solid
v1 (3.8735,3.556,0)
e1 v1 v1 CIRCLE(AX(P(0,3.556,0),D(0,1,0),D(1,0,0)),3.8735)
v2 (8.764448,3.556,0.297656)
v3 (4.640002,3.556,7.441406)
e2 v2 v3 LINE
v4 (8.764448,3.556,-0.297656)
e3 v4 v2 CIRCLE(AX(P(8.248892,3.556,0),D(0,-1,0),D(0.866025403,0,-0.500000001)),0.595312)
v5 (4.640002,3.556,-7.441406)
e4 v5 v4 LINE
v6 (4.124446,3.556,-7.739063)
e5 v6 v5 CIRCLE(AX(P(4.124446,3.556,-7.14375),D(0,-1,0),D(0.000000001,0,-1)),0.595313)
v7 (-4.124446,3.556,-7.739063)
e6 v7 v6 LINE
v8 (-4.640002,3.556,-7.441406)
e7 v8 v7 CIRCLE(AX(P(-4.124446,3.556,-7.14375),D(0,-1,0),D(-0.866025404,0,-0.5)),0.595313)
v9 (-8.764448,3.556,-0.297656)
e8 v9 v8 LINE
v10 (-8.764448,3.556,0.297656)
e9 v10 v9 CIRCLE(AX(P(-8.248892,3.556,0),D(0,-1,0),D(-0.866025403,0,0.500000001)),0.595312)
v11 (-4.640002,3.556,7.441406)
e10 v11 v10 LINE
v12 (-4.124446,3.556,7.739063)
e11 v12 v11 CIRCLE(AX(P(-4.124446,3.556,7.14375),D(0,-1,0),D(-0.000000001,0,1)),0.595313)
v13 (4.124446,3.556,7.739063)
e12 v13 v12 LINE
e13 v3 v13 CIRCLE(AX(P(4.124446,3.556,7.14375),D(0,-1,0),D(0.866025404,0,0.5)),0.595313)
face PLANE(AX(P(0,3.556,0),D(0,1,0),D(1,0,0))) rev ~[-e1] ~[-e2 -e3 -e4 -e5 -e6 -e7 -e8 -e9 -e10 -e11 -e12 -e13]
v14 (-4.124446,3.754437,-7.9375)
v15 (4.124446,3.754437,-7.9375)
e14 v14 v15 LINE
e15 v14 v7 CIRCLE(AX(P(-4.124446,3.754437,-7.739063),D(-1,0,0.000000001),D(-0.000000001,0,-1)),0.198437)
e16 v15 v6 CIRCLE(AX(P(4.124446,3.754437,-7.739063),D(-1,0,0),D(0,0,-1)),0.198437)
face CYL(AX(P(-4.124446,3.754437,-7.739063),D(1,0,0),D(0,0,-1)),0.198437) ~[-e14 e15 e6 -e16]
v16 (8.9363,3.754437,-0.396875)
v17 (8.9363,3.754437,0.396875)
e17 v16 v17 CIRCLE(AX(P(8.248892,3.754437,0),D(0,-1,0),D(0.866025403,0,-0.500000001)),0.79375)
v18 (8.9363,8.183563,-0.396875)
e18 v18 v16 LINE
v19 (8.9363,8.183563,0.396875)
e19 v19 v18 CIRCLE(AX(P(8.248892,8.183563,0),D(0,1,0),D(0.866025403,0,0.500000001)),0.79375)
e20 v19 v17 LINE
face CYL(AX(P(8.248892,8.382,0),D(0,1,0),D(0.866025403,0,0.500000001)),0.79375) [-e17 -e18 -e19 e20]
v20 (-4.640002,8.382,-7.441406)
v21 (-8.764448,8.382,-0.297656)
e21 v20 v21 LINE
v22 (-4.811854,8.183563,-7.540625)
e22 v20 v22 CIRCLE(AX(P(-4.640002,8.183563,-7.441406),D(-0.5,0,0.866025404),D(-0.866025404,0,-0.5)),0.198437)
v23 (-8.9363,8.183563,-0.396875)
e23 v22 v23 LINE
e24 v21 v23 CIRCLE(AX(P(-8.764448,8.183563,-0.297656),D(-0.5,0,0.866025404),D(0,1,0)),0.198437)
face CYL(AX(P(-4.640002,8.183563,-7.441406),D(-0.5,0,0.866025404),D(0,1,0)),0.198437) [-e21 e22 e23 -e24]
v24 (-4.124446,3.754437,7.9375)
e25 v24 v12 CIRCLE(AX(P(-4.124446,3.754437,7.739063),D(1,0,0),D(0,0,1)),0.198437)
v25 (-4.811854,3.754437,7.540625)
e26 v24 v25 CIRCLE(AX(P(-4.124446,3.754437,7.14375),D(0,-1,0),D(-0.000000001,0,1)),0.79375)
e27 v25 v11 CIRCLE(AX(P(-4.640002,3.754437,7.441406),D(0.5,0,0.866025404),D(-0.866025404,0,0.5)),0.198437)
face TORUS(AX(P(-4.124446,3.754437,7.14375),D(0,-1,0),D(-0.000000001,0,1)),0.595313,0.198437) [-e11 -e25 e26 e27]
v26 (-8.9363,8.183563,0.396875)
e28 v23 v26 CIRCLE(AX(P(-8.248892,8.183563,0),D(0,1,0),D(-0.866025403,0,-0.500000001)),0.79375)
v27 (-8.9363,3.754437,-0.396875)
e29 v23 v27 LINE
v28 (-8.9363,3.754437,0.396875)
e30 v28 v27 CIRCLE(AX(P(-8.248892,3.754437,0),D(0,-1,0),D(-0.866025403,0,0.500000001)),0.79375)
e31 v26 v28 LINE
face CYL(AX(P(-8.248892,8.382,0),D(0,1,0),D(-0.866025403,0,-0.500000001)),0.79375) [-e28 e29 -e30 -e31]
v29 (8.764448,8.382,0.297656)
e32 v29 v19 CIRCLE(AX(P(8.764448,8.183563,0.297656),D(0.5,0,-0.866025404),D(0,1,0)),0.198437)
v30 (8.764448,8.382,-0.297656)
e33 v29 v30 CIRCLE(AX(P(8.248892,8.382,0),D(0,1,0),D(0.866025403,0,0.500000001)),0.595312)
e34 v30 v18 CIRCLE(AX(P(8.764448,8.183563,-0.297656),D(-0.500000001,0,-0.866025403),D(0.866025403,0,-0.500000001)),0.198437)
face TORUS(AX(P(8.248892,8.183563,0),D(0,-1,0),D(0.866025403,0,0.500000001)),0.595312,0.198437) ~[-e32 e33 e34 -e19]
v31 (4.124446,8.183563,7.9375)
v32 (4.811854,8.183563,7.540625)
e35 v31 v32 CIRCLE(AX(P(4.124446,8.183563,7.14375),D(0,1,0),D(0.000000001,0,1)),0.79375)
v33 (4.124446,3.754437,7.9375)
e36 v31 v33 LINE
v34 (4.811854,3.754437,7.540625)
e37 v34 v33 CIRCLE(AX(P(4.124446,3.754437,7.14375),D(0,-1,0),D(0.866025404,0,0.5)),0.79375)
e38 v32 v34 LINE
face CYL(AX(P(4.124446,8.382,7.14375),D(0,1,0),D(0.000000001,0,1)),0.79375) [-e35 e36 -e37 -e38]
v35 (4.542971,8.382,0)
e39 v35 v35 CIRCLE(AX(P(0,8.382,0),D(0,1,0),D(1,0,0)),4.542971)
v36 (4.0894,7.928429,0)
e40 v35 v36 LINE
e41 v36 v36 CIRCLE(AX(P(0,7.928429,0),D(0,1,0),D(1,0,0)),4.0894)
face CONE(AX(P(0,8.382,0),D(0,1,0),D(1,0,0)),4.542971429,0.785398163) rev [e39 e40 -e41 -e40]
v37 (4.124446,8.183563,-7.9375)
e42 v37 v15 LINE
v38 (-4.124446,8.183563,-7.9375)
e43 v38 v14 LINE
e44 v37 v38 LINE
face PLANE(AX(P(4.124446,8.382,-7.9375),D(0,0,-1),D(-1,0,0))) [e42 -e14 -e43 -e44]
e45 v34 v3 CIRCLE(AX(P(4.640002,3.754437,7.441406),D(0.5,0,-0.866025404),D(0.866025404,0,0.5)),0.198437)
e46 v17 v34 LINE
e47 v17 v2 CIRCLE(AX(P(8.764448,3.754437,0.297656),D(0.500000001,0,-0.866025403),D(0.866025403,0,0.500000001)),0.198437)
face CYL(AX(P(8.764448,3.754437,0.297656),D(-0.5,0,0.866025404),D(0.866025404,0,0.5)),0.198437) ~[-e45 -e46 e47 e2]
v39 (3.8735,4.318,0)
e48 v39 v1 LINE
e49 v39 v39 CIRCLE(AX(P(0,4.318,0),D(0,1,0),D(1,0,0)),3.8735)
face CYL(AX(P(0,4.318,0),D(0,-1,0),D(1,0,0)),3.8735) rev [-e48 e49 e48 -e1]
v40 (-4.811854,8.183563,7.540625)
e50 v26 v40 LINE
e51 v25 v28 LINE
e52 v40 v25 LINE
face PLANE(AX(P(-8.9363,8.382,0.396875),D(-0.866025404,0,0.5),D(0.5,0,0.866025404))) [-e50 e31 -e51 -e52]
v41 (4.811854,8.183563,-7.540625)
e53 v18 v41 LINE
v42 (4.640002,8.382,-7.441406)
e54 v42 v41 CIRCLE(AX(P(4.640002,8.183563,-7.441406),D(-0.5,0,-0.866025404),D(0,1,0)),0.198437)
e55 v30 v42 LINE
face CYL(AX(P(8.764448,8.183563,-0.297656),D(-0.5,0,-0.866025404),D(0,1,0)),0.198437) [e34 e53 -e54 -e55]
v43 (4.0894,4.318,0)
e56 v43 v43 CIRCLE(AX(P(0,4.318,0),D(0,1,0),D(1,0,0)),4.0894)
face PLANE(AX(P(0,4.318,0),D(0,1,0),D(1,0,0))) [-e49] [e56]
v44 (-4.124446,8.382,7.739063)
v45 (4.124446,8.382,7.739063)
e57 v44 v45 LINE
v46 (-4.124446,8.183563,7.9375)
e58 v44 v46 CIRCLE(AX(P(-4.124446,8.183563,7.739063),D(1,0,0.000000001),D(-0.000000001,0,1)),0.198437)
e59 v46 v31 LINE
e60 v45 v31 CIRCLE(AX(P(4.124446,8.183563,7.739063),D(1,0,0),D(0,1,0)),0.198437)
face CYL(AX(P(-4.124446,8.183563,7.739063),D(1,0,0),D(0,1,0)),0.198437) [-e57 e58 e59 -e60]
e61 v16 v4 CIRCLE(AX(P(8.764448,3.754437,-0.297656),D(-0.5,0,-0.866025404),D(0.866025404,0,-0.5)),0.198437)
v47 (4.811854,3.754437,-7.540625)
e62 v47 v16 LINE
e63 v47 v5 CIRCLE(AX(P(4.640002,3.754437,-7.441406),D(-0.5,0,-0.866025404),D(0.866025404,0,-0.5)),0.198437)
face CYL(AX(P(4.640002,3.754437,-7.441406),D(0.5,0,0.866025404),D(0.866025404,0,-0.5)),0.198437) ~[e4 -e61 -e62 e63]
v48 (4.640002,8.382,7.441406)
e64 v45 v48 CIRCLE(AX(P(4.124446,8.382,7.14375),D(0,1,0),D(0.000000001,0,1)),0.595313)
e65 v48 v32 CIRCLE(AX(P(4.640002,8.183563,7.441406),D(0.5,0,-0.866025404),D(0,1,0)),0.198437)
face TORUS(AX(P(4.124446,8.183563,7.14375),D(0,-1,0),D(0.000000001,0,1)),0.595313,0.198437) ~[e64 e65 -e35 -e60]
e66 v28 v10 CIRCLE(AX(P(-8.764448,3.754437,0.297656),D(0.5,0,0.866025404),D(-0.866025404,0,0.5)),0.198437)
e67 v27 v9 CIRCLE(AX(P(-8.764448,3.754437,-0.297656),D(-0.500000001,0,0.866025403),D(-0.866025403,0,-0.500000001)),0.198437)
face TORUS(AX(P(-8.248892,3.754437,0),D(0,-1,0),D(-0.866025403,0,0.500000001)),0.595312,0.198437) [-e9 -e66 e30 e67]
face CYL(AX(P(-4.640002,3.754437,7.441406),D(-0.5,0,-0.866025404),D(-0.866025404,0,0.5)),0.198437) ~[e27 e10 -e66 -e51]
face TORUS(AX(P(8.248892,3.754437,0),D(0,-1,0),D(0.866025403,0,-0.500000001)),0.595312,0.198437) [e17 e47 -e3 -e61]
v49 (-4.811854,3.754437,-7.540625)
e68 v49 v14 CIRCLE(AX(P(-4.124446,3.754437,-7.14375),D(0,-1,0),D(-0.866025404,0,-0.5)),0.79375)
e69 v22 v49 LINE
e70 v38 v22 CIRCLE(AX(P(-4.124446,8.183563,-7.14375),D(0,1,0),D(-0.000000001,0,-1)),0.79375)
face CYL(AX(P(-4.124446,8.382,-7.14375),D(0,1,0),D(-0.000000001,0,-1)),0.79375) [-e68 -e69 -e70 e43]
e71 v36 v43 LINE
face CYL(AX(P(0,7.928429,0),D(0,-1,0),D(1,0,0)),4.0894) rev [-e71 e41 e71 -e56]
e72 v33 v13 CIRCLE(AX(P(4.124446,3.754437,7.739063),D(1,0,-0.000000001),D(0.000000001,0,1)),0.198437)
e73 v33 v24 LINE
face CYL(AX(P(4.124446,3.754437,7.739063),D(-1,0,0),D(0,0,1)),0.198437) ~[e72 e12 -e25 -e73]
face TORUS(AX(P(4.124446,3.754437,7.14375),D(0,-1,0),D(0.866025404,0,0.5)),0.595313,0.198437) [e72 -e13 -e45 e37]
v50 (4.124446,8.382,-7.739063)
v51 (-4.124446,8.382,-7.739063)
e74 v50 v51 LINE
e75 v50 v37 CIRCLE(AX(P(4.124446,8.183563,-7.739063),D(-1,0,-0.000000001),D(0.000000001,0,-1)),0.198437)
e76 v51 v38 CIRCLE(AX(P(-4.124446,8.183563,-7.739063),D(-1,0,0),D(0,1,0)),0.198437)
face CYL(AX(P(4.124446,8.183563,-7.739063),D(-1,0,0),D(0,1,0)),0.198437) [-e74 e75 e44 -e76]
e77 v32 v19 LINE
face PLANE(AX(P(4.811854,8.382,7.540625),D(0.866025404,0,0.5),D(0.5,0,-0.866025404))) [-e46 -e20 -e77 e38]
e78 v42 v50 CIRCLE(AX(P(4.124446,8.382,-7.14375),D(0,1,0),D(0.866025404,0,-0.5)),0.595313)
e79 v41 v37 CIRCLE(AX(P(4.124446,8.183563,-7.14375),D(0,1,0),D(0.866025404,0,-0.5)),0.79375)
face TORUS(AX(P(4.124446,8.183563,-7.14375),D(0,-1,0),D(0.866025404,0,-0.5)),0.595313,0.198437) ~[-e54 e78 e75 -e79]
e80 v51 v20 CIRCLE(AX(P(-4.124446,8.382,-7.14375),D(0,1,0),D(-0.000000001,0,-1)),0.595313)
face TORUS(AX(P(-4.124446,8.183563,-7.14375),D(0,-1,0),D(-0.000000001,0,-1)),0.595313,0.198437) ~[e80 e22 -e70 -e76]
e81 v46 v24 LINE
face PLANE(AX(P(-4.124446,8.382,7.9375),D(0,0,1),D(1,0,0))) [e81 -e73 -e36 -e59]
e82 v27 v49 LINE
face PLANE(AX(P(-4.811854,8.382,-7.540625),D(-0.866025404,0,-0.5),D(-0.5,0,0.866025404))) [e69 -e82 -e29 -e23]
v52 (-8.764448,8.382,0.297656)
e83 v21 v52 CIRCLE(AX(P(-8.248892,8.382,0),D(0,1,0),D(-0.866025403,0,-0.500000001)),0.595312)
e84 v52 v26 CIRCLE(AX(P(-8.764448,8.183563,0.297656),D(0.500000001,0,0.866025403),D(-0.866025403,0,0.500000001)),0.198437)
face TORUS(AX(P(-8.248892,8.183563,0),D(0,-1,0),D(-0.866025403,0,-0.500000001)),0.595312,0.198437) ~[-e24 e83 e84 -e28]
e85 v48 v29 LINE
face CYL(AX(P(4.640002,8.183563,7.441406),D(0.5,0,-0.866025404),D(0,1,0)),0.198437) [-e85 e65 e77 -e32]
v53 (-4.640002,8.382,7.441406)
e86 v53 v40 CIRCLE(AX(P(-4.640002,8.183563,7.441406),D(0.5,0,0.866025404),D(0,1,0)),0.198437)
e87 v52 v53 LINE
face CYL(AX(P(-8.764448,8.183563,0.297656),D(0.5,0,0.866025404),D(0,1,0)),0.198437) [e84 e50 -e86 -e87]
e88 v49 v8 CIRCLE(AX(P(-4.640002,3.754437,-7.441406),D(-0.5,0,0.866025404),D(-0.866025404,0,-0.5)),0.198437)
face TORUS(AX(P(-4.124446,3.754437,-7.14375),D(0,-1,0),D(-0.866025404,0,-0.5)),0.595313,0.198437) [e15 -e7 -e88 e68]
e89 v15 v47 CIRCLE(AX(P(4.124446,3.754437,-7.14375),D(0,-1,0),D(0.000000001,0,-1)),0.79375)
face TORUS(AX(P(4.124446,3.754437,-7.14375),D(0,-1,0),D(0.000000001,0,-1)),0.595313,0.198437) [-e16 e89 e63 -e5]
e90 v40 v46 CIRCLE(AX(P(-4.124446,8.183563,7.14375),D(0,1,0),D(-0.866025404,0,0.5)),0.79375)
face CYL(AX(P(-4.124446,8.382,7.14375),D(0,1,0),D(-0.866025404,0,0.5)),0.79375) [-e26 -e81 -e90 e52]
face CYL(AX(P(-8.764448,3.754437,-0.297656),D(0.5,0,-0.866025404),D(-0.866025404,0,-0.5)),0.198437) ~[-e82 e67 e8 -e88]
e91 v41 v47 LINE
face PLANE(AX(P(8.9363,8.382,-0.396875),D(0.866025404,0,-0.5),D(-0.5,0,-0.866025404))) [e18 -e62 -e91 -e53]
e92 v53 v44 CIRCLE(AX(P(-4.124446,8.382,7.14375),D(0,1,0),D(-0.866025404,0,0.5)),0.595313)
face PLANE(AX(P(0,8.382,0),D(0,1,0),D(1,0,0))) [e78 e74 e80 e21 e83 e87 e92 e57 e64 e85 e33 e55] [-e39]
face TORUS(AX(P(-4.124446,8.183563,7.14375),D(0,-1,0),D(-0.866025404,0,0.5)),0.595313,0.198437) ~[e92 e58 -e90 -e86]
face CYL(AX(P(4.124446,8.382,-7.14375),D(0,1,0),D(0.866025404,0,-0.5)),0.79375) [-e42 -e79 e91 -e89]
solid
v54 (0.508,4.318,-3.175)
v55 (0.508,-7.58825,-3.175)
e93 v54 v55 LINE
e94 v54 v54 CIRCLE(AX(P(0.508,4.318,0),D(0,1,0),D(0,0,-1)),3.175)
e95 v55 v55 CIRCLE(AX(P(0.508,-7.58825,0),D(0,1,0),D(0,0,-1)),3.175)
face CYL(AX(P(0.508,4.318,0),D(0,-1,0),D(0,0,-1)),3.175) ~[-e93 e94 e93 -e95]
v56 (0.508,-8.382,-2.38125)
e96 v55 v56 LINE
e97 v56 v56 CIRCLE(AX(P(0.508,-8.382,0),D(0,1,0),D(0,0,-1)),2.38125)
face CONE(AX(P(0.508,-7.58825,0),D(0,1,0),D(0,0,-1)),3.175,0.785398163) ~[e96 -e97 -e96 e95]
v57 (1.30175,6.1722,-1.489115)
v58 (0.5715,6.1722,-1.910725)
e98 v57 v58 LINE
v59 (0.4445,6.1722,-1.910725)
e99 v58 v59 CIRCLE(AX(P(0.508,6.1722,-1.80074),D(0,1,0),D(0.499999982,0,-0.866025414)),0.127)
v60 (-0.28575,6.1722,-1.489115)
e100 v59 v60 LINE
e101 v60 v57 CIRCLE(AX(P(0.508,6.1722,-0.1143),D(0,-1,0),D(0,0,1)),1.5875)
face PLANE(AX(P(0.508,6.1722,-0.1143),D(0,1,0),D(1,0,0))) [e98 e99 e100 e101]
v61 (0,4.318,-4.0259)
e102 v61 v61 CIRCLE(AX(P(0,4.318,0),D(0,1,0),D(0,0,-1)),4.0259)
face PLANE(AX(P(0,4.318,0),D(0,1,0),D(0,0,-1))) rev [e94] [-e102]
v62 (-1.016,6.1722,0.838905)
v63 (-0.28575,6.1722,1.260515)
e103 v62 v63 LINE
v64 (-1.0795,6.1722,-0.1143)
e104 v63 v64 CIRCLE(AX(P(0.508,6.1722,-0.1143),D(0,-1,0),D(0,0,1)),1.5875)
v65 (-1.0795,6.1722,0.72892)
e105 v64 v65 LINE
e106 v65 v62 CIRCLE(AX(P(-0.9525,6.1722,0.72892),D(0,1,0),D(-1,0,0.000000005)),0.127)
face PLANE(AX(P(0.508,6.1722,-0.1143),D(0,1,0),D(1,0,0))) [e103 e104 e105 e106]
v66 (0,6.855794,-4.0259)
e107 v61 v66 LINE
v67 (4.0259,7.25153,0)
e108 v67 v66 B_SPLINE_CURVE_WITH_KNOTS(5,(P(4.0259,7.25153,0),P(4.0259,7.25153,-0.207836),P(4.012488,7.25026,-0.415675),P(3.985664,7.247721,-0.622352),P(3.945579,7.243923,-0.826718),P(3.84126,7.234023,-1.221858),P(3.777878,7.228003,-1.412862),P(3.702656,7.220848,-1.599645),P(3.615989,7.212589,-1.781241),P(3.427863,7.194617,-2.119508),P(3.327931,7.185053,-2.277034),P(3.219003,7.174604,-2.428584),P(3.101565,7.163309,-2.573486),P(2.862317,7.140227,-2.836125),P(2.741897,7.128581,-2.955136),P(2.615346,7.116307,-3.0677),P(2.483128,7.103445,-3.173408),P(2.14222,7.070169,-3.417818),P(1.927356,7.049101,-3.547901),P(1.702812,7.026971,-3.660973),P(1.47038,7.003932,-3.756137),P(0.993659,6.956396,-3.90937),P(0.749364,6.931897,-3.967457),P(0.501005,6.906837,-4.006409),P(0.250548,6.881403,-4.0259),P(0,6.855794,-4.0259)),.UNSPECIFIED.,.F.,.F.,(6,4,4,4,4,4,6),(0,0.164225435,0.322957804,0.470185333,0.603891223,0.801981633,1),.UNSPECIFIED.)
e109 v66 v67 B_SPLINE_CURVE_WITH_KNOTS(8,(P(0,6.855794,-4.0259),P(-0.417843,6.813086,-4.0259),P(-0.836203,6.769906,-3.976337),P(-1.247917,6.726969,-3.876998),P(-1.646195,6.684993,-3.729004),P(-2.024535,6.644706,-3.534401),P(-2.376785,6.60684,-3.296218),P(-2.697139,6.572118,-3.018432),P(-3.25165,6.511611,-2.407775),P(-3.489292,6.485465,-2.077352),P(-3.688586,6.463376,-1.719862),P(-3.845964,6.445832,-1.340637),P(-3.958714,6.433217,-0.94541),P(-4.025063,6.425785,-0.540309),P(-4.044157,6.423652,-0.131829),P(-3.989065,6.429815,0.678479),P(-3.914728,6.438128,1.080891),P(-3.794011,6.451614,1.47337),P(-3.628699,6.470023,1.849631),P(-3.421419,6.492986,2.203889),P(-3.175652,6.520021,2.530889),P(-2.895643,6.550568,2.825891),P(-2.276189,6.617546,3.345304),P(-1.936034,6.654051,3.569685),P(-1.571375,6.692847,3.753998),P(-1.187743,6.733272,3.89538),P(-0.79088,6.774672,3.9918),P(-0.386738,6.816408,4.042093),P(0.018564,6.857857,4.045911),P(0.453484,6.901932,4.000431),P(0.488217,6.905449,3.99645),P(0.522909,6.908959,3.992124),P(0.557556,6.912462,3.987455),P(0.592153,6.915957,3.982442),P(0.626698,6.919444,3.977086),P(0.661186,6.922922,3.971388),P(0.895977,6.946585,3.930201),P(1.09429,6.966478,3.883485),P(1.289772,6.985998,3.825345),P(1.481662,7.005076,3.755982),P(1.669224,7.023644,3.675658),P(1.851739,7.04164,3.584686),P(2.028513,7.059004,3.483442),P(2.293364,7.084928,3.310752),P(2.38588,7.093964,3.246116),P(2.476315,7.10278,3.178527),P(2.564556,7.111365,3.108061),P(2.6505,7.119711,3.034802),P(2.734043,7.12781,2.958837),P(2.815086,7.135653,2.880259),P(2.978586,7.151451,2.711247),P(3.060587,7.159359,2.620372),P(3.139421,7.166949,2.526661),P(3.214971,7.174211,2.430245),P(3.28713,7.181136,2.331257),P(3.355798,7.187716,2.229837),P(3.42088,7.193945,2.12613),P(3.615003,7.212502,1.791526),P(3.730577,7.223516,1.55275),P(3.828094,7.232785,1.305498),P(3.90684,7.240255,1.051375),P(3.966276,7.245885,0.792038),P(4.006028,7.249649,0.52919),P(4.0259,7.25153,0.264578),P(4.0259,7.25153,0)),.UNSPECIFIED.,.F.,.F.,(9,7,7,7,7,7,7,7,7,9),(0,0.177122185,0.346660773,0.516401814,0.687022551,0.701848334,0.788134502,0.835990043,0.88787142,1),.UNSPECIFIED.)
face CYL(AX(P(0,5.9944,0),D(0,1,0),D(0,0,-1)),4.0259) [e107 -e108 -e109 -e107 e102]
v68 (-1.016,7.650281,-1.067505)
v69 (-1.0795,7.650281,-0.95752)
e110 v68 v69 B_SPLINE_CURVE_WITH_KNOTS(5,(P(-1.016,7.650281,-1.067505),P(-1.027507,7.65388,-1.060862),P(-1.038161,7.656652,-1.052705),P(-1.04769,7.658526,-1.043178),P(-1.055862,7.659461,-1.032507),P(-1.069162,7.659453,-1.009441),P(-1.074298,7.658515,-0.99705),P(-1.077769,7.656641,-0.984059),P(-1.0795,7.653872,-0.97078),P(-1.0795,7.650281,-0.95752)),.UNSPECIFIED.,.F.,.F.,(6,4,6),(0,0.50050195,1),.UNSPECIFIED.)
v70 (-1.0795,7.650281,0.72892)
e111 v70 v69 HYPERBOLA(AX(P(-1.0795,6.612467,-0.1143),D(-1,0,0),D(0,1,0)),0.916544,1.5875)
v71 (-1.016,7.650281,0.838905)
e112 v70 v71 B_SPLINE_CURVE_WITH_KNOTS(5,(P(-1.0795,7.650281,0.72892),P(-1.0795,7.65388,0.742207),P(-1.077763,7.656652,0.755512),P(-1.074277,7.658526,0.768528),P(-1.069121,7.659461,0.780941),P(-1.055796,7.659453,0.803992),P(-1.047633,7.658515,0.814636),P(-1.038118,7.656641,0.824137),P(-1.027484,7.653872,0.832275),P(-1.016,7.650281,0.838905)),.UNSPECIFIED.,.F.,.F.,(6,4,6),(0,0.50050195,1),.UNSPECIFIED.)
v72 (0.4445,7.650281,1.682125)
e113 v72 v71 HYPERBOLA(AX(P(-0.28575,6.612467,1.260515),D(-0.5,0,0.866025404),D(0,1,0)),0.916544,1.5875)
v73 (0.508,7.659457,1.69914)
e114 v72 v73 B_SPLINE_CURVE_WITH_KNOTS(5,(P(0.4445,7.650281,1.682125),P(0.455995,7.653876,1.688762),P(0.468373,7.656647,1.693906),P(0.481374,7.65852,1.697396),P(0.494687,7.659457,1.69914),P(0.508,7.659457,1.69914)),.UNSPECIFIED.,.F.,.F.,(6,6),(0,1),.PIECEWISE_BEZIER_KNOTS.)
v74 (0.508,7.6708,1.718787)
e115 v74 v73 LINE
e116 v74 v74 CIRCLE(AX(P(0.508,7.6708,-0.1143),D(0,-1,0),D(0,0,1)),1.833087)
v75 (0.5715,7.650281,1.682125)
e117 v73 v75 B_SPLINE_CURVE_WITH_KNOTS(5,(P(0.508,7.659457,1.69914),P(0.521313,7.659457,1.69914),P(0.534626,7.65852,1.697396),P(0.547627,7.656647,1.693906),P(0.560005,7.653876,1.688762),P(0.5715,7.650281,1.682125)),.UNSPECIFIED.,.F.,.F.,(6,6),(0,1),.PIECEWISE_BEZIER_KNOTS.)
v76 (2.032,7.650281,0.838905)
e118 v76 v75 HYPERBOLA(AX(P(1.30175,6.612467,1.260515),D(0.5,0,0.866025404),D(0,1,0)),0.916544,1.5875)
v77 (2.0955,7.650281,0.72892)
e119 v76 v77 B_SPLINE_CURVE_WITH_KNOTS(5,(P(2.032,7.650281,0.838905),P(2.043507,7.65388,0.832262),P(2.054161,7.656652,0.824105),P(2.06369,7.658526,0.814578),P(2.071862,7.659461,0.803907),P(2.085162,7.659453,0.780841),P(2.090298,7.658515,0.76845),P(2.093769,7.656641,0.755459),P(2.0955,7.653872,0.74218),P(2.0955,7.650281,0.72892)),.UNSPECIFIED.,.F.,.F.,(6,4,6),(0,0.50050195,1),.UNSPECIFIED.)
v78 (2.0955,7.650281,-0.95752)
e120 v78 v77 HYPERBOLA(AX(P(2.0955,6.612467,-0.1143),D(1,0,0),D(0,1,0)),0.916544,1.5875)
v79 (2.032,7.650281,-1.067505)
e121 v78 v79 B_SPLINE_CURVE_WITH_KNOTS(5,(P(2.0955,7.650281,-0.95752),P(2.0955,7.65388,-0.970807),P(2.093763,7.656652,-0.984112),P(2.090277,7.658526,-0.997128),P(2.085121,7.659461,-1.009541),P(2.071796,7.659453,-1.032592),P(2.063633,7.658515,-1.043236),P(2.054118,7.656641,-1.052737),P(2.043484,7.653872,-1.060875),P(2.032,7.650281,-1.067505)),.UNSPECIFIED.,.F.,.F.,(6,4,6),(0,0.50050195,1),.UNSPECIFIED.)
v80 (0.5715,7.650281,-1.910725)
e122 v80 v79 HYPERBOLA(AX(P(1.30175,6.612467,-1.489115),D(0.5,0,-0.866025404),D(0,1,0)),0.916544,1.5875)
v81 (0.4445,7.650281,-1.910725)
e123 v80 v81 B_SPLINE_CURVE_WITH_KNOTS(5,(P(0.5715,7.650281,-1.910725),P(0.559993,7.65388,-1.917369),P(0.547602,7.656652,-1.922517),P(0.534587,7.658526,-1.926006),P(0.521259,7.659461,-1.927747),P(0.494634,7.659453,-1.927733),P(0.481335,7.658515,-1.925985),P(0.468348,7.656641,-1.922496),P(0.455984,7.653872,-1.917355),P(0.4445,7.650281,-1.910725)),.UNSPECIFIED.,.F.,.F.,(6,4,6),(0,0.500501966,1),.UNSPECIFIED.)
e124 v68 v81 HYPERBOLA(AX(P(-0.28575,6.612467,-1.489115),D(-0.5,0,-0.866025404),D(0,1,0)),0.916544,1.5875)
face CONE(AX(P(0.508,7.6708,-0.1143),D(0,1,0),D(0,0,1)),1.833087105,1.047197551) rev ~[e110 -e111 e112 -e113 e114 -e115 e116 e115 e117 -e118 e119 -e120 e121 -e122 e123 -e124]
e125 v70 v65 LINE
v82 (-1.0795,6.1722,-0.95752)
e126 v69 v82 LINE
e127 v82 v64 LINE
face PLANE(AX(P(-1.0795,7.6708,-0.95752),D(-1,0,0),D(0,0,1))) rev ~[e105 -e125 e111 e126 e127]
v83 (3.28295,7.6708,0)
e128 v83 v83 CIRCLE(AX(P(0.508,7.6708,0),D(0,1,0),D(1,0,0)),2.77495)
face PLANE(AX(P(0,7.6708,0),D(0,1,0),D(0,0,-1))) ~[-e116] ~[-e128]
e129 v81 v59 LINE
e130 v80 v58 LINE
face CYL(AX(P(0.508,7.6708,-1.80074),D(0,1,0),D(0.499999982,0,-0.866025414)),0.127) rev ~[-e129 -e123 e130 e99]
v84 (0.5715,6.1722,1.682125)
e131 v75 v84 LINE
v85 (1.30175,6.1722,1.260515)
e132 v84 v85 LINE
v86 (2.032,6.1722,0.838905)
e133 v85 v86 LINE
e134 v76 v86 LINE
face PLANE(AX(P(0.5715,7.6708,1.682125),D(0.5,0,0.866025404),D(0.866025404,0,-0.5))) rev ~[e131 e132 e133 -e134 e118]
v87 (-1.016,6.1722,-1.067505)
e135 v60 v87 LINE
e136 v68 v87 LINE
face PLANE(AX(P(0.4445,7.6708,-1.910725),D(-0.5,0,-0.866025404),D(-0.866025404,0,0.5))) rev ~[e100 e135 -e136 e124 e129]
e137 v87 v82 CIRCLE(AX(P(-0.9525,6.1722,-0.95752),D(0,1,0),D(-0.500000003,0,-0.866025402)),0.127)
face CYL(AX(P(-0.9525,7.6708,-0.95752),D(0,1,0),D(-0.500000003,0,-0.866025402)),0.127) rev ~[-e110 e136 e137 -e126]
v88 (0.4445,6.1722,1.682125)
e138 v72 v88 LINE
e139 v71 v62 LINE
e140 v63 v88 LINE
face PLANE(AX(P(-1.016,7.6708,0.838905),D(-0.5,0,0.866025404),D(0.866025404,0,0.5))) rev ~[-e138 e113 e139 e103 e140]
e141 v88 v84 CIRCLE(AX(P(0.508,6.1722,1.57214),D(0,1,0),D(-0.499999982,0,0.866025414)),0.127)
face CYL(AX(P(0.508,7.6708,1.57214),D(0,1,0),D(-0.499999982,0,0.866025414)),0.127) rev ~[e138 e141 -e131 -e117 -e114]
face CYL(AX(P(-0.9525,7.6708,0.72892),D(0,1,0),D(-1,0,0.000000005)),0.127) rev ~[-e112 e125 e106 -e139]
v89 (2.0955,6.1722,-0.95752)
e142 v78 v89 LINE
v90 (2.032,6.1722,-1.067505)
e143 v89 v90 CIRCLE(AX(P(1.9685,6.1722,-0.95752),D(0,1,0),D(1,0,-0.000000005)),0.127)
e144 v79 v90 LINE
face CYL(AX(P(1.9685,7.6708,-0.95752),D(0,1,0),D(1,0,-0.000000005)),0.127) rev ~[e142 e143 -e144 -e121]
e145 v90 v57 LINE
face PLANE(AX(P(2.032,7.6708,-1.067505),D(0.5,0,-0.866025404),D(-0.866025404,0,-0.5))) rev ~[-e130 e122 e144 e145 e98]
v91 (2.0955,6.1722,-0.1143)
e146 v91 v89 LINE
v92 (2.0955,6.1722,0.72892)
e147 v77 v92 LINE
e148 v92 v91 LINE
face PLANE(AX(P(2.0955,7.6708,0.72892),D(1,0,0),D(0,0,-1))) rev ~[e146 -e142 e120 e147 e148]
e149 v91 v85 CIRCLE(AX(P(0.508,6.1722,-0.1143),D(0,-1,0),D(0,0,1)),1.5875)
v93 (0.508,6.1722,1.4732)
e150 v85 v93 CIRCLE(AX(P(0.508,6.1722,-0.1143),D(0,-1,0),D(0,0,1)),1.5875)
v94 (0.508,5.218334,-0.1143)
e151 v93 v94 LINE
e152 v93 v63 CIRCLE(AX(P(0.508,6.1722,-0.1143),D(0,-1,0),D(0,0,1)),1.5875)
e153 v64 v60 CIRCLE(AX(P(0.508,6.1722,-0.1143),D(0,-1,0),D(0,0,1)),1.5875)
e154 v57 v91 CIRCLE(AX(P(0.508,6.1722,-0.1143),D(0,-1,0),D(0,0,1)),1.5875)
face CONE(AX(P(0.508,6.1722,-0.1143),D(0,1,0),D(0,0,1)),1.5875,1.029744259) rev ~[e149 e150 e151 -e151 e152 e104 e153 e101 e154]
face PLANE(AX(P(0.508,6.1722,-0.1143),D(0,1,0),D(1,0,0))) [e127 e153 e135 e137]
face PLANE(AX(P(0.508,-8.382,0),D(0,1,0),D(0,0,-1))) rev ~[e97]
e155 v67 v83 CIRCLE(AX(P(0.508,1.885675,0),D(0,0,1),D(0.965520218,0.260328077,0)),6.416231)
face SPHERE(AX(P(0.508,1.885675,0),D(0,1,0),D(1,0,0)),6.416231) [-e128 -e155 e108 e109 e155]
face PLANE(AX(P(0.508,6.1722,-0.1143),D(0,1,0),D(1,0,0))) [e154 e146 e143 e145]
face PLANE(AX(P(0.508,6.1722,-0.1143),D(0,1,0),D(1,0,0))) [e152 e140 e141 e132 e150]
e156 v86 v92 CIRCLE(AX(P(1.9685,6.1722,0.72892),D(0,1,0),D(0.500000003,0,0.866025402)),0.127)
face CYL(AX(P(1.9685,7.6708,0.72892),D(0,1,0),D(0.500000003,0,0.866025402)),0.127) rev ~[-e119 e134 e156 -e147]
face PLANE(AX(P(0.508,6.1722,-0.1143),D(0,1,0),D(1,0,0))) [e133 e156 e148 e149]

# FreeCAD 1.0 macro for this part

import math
import FreeCAD as App
import Part
import Sketcher
Q = App.Units.Quantity


def edges_at(feature, points):
    """Names of the edges that pass closest to the given points."""
    edges = feature.Shape.Edges
    near = lambda p: min(range(len(edges)), key=lambda i: edges[i].distToShape(Part.Vertex(*p))[0])
    return sorted({f"Edge{near(p) + 1}" for p in points})

doc = App.newDocument("Part")
params = doc.addObject("Spreadsheet::Sheet", "Params")
for row, (alias, value) in enumerate([
    ("sketch1_width", "0.16 in"),
    ("sketch1_height", "0.19 in"),
    ("sketch1_height2", "0.03 in"),
    ("revolution_angle", "360 deg"),
    ("sketch2_radius", "0.03125 in"),
    ("pad1_length", "0.19 in"),
    ("fillet_radius", "0.198437 mm"),
    ("sketch3_height", "0.132 in"),
    ("revolution2_angle", "360 deg"),
    ("sketch4_height", "0.5 in"),
    ("sketch4_width", "0.125 in"),
    ("sketch4_width2", "0.09375 in"),
    ("revolution3_angle", "360 deg"),
    ("sketch5_height", "0.19 in"),
    ("groove_angle", "360 deg"),
    ("sketch6_radius", "0.005 in"),
    ("pocket1_length", "0.059 in"),
    ("sketch7_height", "0.0625 in"),
    ("groove2_angle", "360 deg"),
    ("groove3_angle", "360 deg"),
], start=1):
    params.set(f"A{row}", alias)
    params.set(f"B{row}", "=" + value)
    params.setAlias(f"B{row}", alias)

body = doc.addObject("PartDesign::Body", "Body")

# Sketch on XY plane
sketch1 = doc.addObject("Sketcher::SketchObject", "Sketch")
body.addObject(sketch1)
sketch1.AttachmentSupport = (doc.XY_Plane, [""])
sketch1.MapMode = "FlatFace"
sketch1.addGeometry(Part.LineSegment(App.Vector(-4.0894, 7.928429, 0), App.Vector(-4.542971, 8.382, 0)), False)
sketch1.addGeometry(Part.LineSegment(App.Vector(-4.542971, 8.382, 0), App.Vector(-7.9375, 8.382, 0)), False)
sketch1.addGeometry(Part.LineSegment(App.Vector(-7.9375, 8.382, 0), App.Vector(-7.9375, 3.556, 0)), False)
sketch1.addGeometry(Part.LineSegment(App.Vector(-7.9375, 3.556, 0), App.Vector(-3.8735, 3.556, 0)), False)
sketch1.addGeometry(Part.LineSegment(App.Vector(-3.8735, 3.556, 0), App.Vector(-3.8735, 4.318, 0)), False)
sketch1.addGeometry(Part.LineSegment(App.Vector(-3.8735, 4.318, 0), App.Vector(-4.0894, 4.318, 0)), False)
sketch1.addGeometry(Part.LineSegment(App.Vector(-4.0894, 4.318, 0), App.Vector(-4.0894, 7.928429, 0)), False)
sketch1.addConstraint(Sketcher.Constraint("Coincident", 0, 2, 1, 1))
sketch1.addConstraint(Sketcher.Constraint("Coincident", 1, 2, 2, 1))
sketch1.addConstraint(Sketcher.Constraint("Coincident", 2, 2, 3, 1))
sketch1.addConstraint(Sketcher.Constraint("Coincident", 3, 2, 4, 1))
sketch1.addConstraint(Sketcher.Constraint("Coincident", 4, 2, 5, 1))
sketch1.addConstraint(Sketcher.Constraint("Coincident", 5, 2, 6, 1))
sketch1.addConstraint(Sketcher.Constraint("Coincident", 6, 2, 0, 1))
sketch1.addConstraint(Sketcher.Constraint("Horizontal", 1))
sketch1.addConstraint(Sketcher.Constraint("Vertical", 2))
sketch1.addConstraint(Sketcher.Constraint("Horizontal", 3))
sketch1.addConstraint(Sketcher.Constraint("Vertical", 4))
sketch1.addConstraint(Sketcher.Constraint("Horizontal", 5))
sketch1.addConstraint(Sketcher.Constraint("Vertical", 6))
sketch1.addConstraint(Sketcher.Constraint("Angle", 0, Q("135 deg")))
sketch1.addConstraint(Sketcher.Constraint("DistanceX", 3, 1, 3, 2, Q("0.16 in")))
sketch1.addConstraint(Sketcher.Constraint("DistanceY", 2, 2, 2, 1, Q("0.19 in")))
sketch1.addConstraint(Sketcher.Constraint("DistanceY", 4, 1, 4, 2, Q("0.03 in")))
sketch1.addConstraint(Sketcher.Constraint("DistanceY", -1, 1, 0, 2, Q("0.33 in")))
sketch1.addConstraint(Sketcher.Constraint("DistanceX", 5, 2, 5, 1, Q("0.0085 in")))
sketch1.addConstraint(Sketcher.Constraint("DistanceX", 1, 2, -1, 1, Q("0.3125 in")))
sketch1.addConstraint(Sketcher.Constraint("DistanceX", 1, 2, 1, 1, 3.394529))
sketch1.setExpression("Constraints[14]", "Params.sketch1_width")
sketch1.setExpression("Constraints[15]", "Params.sketch1_height")
sketch1.setExpression("Constraints[16]", "Params.sketch1_height2")
revolution = doc.addObject("PartDesign::Revolution", "Revolution")
body.addObject(revolution)
revolution.Profile = sketch1
revolution.ReferenceAxis = (sketch1, ["V_Axis"])
revolution.setExpression("Angle", "Params.revolution_angle")

# Sketch on XZ plane
sketch2 = doc.addObject("Sketcher::SketchObject", "Sketch001")
body.addObject(sketch2)
sketch2.AttachmentSupport = (doc.XZ_Plane, [""])
sketch2.MapMode = "FlatFace"
sketch2.AttachmentOffset = App.Placement(App.Vector(0, 0, -0.33 * 25.4), App.Rotation())
sketch2.addGeometry(Part.LineSegment(App.Vector(4.124446, -7.9375, 0), App.Vector(-4.124446, -7.9375, 0)), False)
sketch2.addGeometry(Part.ArcOfCircle(Part.Circle(App.Vector(-4.124446, -7.14375, 0), App.Vector(0, 0, 1), 0.79375), math.radians(-150), math.radians(-90)), False)
sketch2.addGeometry(Part.LineSegment(App.Vector(-4.811854, -7.540625, 0), App.Vector(-8.9363, -0.396875, 0)), False)
sketch2.addGeometry(Part.ArcOfCircle(Part.Circle(App.Vector(-8.248892, 0, 0), App.Vector(0, 0, 1), 0.79375), math.radians(150), math.radians(210)), False)
sketch2.addGeometry(Part.LineSegment(App.Vector(-8.9363, 0.396875, 0), App.Vector(-4.811854, 7.540625, 0)), False)
sketch2.addGeometry(Part.ArcOfCircle(Part.Circle(App.Vector(-4.124446, 7.14375, 0), App.Vector(0, 0, 1), 0.79375), math.radians(90), math.radians(150)), False)
sketch2.addGeometry(Part.LineSegment(App.Vector(-4.124446, 7.9375, 0), App.Vector(4.124446, 7.9375, 0)), False)
sketch2.addGeometry(Part.ArcOfCircle(Part.Circle(App.Vector(4.124446, 7.14375, 0), App.Vector(0, 0, 1), 0.79375), math.radians(30), math.radians(90)), False)
sketch2.addGeometry(Part.LineSegment(App.Vector(4.811854, 7.540625, 0), App.Vector(8.9363, 0.396875, 0)), False)
sketch2.addGeometry(Part.ArcOfCircle(Part.Circle(App.Vector(8.248892, 0, 0), App.Vector(0, 0, 1), 0.79375), math.radians(-30), math.radians(30)), False)
sketch2.addGeometry(Part.LineSegment(App.Vector(8.9363, -0.396875, 0), App.Vector(4.811854, -7.540625, 0)), False)
sketch2.addGeometry(Part.ArcOfCircle(Part.Circle(App.Vector(4.124446, -7.14375, 0), App.Vector(0, 0, 1), 0.79375), math.radians(-90), math.radians(-30)), False)
sketch2.addGeometry(Part.Circle(App.Vector(0, 0, 0), App.Vector(0, 0, 1), 4.542971), False)
sketch2.addConstraint(Sketcher.Constraint("Tangent", 0, 2, 1, 2))
sketch2.addConstraint(Sketcher.Constraint("Tangent", 1, 1, 2, 1))
sketch2.addConstraint(Sketcher.Constraint("Tangent", 2, 2, 3, 2))
sketch2.addConstraint(Sketcher.Constraint("Tangent", 3, 1, 4, 1))
sketch2.addConstraint(Sketcher.Constraint("Tangent", 4, 2, 5, 2))
sketch2.addConstraint(Sketcher.Constraint("Tangent", 5, 1, 6, 1))
sketch2.addConstraint(Sketcher.Constraint("Tangent", 6, 2, 7, 2))
sketch2.addConstraint(Sketcher.Constraint("Tangent", 7, 1, 8, 1))
sketch2.addConstraint(Sketcher.Constraint("Tangent", 8, 2, 9, 2))
sketch2.addConstraint(Sketcher.Constraint("Tangent", 9, 1, 10, 1))
sketch2.addConstraint(Sketcher.Constraint("Tangent", 10, 2, 11, 2))
sketch2.addConstraint(Sketcher.Constraint("Tangent", 11, 1, 0, 1))
sketch2.addConstraint(Sketcher.Constraint("Horizontal", 0))
sketch2.addConstraint(Sketcher.Constraint("Horizontal", 6))
sketch2.addConstraint(Sketcher.Constraint("Coincident", 12, 3, -1, 1))
sketch2.addConstraint(Sketcher.Constraint("Equal", 1, 3))
sketch2.addConstraint(Sketcher.Constraint("Equal", 3, 5))
sketch2.addConstraint(Sketcher.Constraint("Equal", 5, 7))
sketch2.addConstraint(Sketcher.Constraint("Equal", 7, 9))
sketch2.addConstraint(Sketcher.Constraint("Equal", 9, 11))
sketch2.addConstraint(Sketcher.Constraint("Symmetric", 1, 3, 7, 3, -1, 1))
sketch2.addConstraint(Sketcher.Constraint("Symmetric", 3, 3, 9, 3, -1, 1))
sketch2.addConstraint(Sketcher.Constraint("Symmetric", 4, 2, 7, 1, -2))
sketch2.addConstraint(Sketcher.Constraint("Parallel", 4, 10))
sketch2.addConstraint(Sketcher.Constraint("Angle", 2, Q("120 deg")))
sketch2.addConstraint(Sketcher.Constraint("Radius", 1, Q("0.03125 in")))
sketch2.addConstraint(Sketcher.Constraint("DistanceY", 1, 3, -1, 1, Q("0.28125 in")))
sketch2.addConstraint(Sketcher.Constraint("Diameter", 12, 9.085943))
sketch2.addConstraint(Sketcher.Constraint("DistanceX", 0, 2, 0, 1, 8.248892))
sketch2.setExpression("Constraints[25]", "Params.sketch2_radius")
pad1 = doc.addObject("PartDesign::Pad", "Pad")
body.addObject(pad1)
pad1.Profile = sketch2
pad1.setExpression("Length", "Params.pad1_length")
doc.recompute()

fillet = doc.addObject("PartDesign::Fillet", "Fillet")
body.addObject(fillet)
fillet.Base = (pad1, edges_at(pad1, [
    (-6.874, 3.556, 3.969),
    (0, 3.556, 7.938),
    (-4.521, 3.556, 7.831),
    (6.874, 3.556, 3.969),
    (4.521, 3.556, 7.831),
    (6.874, 3.556, -3.969),
    (9.043, 3.556, 0),
    (0, 3.556, -7.938),
    (4.521, 3.556, -7.831),
    (-6.874, 3.556, -3.969),
    (-4.521, 3.556, -7.831),
    (6.874, 8.382, 3.969),
    (0, 8.382, 7.938),
    (4.521, 8.382, 7.831),
    (-6.874, 8.382, 3.969),
    (-4.521, 8.382, 7.831),
    (-6.874, 8.382, -3.969),
    (-9.043, 8.382, 0),
    (0, 8.382, -7.938),
    (-4.521, 8.382, -7.831),
    (6.874, 8.382, -3.969),
    (4.521, 8.382, -7.831),
    (9.043, 8.382, 0),
    (-9.043, 3.556, 0),
]))
fillet.setExpression("Radius", "Params.fillet_radius")
body2 = doc.addObject("PartDesign::Body", "Body001")

# Sketch on XY plane
sketch3 = doc.addObject("Sketcher::SketchObject", "Sketch002")
body2.addObject(sketch3)
sketch3.AttachmentSupport = (doc.getObject("XY_Plane001"), [""])
sketch3.MapMode = "FlatFace"
sketch3.addGeometry(Part.LineSegment(App.Vector(0, 7.6708, 0), App.Vector(0, 4.318, 0)), False)
sketch3.addGeometry(Part.LineSegment(App.Vector(0, 4.318, 0), App.Vector(4.0259, 4.318, 0)), False)
sketch3.addGeometry(Part.LineSegment(App.Vector(4.0259, 4.318, 0), App.Vector(4.0259, 7.6708, 0)), False)
sketch3.addGeometry(Part.LineSegment(App.Vector(4.0259, 7.6708, 0), App.Vector(0, 7.6708, 0)), False)
sketch3.addConstraint(Sketcher.Constraint("Coincident", 0, 2, 1, 1))
sketch3.addConstraint(Sketcher.Constraint("Coincident", 1, 2, 2, 1))
sketch3.addConstraint(Sketcher.Constraint("Coincident", 2, 2, 3, 1))
sketch3.addConstraint(Sketcher.Constraint("Coincident", 3, 2, 0, 1))
sketch3.addConstraint(Sketcher.Constraint("Vertical", 0))
sketch3.addConstraint(Sketcher.Constraint("Horizontal", 1))
sketch3.addConstraint(Sketcher.Constraint("Vertical", 2))
sketch3.addConstraint(Sketcher.Constraint("Horizontal", 3))
sketch3.addConstraint(Sketcher.Constraint("PointOnObject", 0, 2, -2))
sketch3.addConstraint(Sketcher.Constraint("DistanceY", 0, 2, 0, 1, Q("0.132 in")))
sketch3.addConstraint(Sketcher.Constraint("DistanceY", -1, 1, 0, 2, Q("0.17 in")))
sketch3.addConstraint(Sketcher.Constraint("DistanceX", 1, 1, 1, 2, Q("0.1585 in")))
sketch3.setExpression("Constraints[9]", "Params.sketch3_height")
revolution2 = doc.addObject("PartDesign::Revolution", "Revolution001")
body2.addObject(revolution2)
revolution2.Profile = sketch3
revolution2.ReferenceAxis = (sketch3, ["V_Axis"])
revolution2.setExpression("Angle", "Params.revolution2_angle")

# Sketch on XY plane
sketch4 = doc.addObject("Sketcher::SketchObject", "Sketch003")
body2.addObject(sketch4)
sketch4.AttachmentSupport = (doc.getObject("XY_Plane001"), [""])
sketch4.MapMode = "FlatFace"
sketch4.addGeometry(Part.LineSegment(App.Vector(3.683, 4.318, 0), App.Vector(0.508, 4.318, 0)), False)
sketch4.addGeometry(Part.LineSegment(App.Vector(0.508, 4.318, 0), App.Vector(0.508, -8.382, 0)), False)
sketch4.addGeometry(Part.LineSegment(App.Vector(0.508, -8.382, 0), App.Vector(2.88925, -8.382, 0)), False)
sketch4.addGeometry(Part.LineSegment(App.Vector(2.88925, -8.382, 0), App.Vector(3.683, -7.58825, 0)), False)
sketch4.addGeometry(Part.LineSegment(App.Vector(3.683, -7.58825, 0), App.Vector(3.683, 4.318, 0)), False)
sketch4.addGeometry(Part.LineSegment(App.Vector(0.508, -8.382, 0), App.Vector(0.508, 4.318, 0)), True)  # axis
sketch4.addConstraint(Sketcher.Constraint("Coincident", 0, 2, 1, 1))
sketch4.addConstraint(Sketcher.Constraint("Coincident", 1, 2, 2, 1))
sketch4.addConstraint(Sketcher.Constraint("Coincident", 2, 2, 3, 1))
sketch4.addConstraint(Sketcher.Constraint("Coincident", 3, 2, 4, 1))
sketch4.addConstraint(Sketcher.Constraint("Coincident", 4, 2, 0, 1))
sketch4.addConstraint(Sketcher.Constraint("Horizontal", 0))
sketch4.addConstraint(Sketcher.Constraint("Vertical", 1))
sketch4.addConstraint(Sketcher.Constraint("Horizontal", 2))
sketch4.addConstraint(Sketcher.Constraint("Vertical", 4))
sketch4.addConstraint(Sketcher.Constraint("Vertical", 5))
sketch4.addConstraint(Sketcher.Constraint("Coincident", 5, 1, 1, 2))
sketch4.addConstraint(Sketcher.Constraint("Horizontal", 4, 2, 5, 2))
sketch4.addConstraint(Sketcher.Constraint("DistanceY", 1, 2, 1, 1, Q("0.5 in")))
sketch4.addConstraint(Sketcher.Constraint("Angle", 3, Q("45 deg")))
sketch4.addConstraint(Sketcher.Constraint("DistanceX", 0, 2, 0, 1, Q("0.125 in")))
sketch4.addConstraint(Sketcher.Constraint("DistanceX", 2, 1, 2, 2, Q("0.09375 in")))
sketch4.addConstraint(Sketcher.Constraint("DistanceX", -1, 1, 0, 2, Q("0.02 in")))
sketch4.addConstraint(Sketcher.Constraint("DistanceY", -1, 1, 0, 2, Q("0.17 in")))
sketch4.setExpression("Constraints[12]", "Params.sketch4_height")
sketch4.setExpression("Constraints[14]", "Params.sketch4_width")
sketch4.setExpression("Constraints[15]", "Params.sketch4_width2")
revolution3 = doc.addObject("PartDesign::Revolution", "Revolution002")
body2.addObject(revolution3)
revolution3.Profile = sketch4
revolution3.ReferenceAxis = (sketch4, ["Axis0"])
revolution3.setExpression("Angle", "Params.revolution3_angle")

# Sketch on XY plane
sketch5 = doc.addObject("Sketcher::SketchObject", "Sketch004")
body2.addObject(sketch5)
sketch5.AttachmentSupport = (doc.getObject("XY_Plane001"), [""])
sketch5.MapMode = "FlatFace"
sketch5.addGeometry(Part.LineSegment(App.Vector(6.703001, 3.556, 0), App.Vector(6.703001, 13.127906, 0)), False)
sketch5.addGeometry(Part.LineSegment(App.Vector(6.703001, 13.127906, 0), App.Vector(0.508, 13.127906, 0)), False)
sketch5.addGeometry(Part.LineSegment(App.Vector(0.508, 13.127906, 0), App.Vector(0.508, 8.301906, 0)), False)
sketch5.addGeometry(Part.ArcOfCircle(Part.Circle(App.Vector(0.508, 1.885675, 0), App.Vector(0, 0, 1), 6.416231), math.radians(15.08953), math.radians(90)), False)
sketch5.addGeometry(Part.LineSegment(App.Vector(0.508, 1.885675, 0), App.Vector(0.508, 13.127906, 0)), True)  # axis
sketch5.addConstraint(Sketcher.Constraint("Coincident", 0, 2, 1, 1))
sketch5.addConstraint(Sketcher.Constraint("Coincident", 1, 2, 2, 1))
sketch5.addConstraint(Sketcher.Constraint("Coincident", 2, 2, 3, 2))
sketch5.addConstraint(Sketcher.Constraint("Coincident", 3, 1, 0, 1))
sketch5.addConstraint(Sketcher.Constraint("Vertical", 0))
sketch5.addConstraint(Sketcher.Constraint("Horizontal", 1))
sketch5.addConstraint(Sketcher.Constraint("Vertical", 2))
sketch5.addConstraint(Sketcher.Constraint("Vertical", 4))
sketch5.addConstraint(Sketcher.Constraint("Coincident", 4, 1, 3, 3))
sketch5.addConstraint(Sketcher.Constraint("Coincident", 4, 2, 1, 2))
sketch5.addConstraint(Sketcher.Constraint("DistanceY", 2, 2, 2, 1, Q("0.19 in")))
sketch5.addConstraint(Sketcher.Constraint("DistanceX", -1, 1, 3, 3, Q("0.02 in")))
sketch5.addConstraint(Sketcher.Constraint("DistanceY", -1, 1, 3, 1, Q("0.14 in")))
sketch5.addConstraint(Sketcher.Constraint("Radius", 3, 6.416231))
sketch5.addConstraint(Sketcher.Constraint("DistanceX", 1, 2, 1, 1, 6.195001))
sketch5.setExpression("Constraints[10]", "Params.sketch5_height")
groove = doc.addObject("PartDesign::Groove", "Groove")
body2.addObject(groove)
groove.Profile = sketch5
groove.ReferenceAxis = (sketch5, ["Axis0"])
groove.setExpression("Angle", "Params.groove_angle")

# Sketch on XZ plane
sketch6 = doc.addObject("Sketcher::SketchObject", "Sketch005")
body2.addObject(sketch6)
sketch6.AttachmentSupport = (doc.getObject("XZ_Plane001"), [""])
sketch6.MapMode = "FlatFace"
sketch6.AttachmentOffset = App.Placement(App.Vector(0, 0, -0.302 * 25.4), App.Rotation())
sketch6.addGeometry(Part.LineSegment(App.Vector(-1.016, 0.838905, 0), App.Vector(0.4445, 1.682125, 0)), False)
sketch6.addGeometry(Part.ArcOfCircle(Part.Circle(App.Vector(0.508, 1.57214, 0), App.Vector(0, 0, 1), 0.127), math.radians(60.000001), math.radians(119.999999)), False)
sketch6.addGeometry(Part.LineSegment(App.Vector(0.5715, 1.682125, 0), App.Vector(2.032, 0.838905, 0)), False)
sketch6.addGeometry(Part.ArcOfCircle(Part.Circle(App.Vector(1.9685, 0.72892, 0), App.Vector(0, 0, 1), 0.127), math.radians(0), math.radians(60)), False)
sketch6.addGeometry(Part.LineSegment(App.Vector(2.0955, 0.72892, 0), App.Vector(2.0955, -0.95752, 0)), False)
sketch6.addGeometry(Part.ArcOfCircle(Part.Circle(App.Vector(1.9685, -0.95752, 0), App.Vector(0, 0, 1), 0.127), math.radians(-60), math.radians(0)), False)
sketch6.addGeometry(Part.LineSegment(App.Vector(2.032, -1.067505, 0), App.Vector(0.5715, -1.910725, 0)), False)
sketch6.addGeometry(Part.ArcOfCircle(Part.Circle(App.Vector(0.508, -1.80074, 0), App.Vector(0, 0, 1), 0.127), math.radians(-119.999999), math.radians(-60.000001)), False)
sketch6.addGeometry(Part.LineSegment(App.Vector(0.4445, -1.910725, 0), App.Vector(-1.016, -1.067505, 0)), False)
sketch6.addGeometry(Part.ArcOfCircle(Part.Circle(App.Vector(-0.9525, -0.95752, 0), App.Vector(0, 0, 1), 0.127), math.radians(-180), math.radians(-120)), False)
sketch6.addGeometry(Part.LineSegment(App.Vector(-1.0795, -0.95752, 0), App.Vector(-1.0795, 0.72892, 0)), False)
sketch6.addGeometry(Part.ArcOfCircle(Part.Circle(App.Vector(-0.9525, 0.72892, 0), App.Vector(0, 0, 1), 0.127), math.radians(120), math.radians(180)), False)
sketch6.addConstraint(Sketcher.Constraint("Tangent", 0, 2, 1, 2))
sketch6.addConstraint(Sketcher.Constraint("Tangent", 1, 1, 2, 1))
sketch6.addConstraint(Sketcher.Constraint("Tangent", 2, 2, 3, 2))
sketch6.addConstraint(Sketcher.Constraint("Tangent", 3, 1, 4, 1))
sketch6.addConstraint(Sketcher.Constraint("Tangent", 4, 2, 5, 2))
sketch6.addConstraint(Sketcher.Constraint("Tangent", 5, 1, 6, 1))
sketch6.addConstraint(Sketcher.Constraint("Tangent", 6, 2, 7, 2))
sketch6.addConstraint(Sketcher.Constraint("Tangent", 7, 1, 8, 1))
sketch6.addConstraint(Sketcher.Constraint("Tangent", 8, 2, 9, 2))
sketch6.addConstraint(Sketcher.Constraint("Tangent", 9, 1, 10, 1))
sketch6.addConstraint(Sketcher.Constraint("Tangent", 10, 2, 11, 2))
sketch6.addConstraint(Sketcher.Constraint("Tangent", 11, 1, 0, 1))
sketch6.addConstraint(Sketcher.Constraint("Vertical", 4))
sketch6.addConstraint(Sketcher.Constraint("Vertical", 10))
sketch6.addConstraint(Sketcher.Constraint("Equal", 1, 3))
sketch6.addConstraint(Sketcher.Constraint("Equal", 3, 5))
sketch6.addConstraint(Sketcher.Constraint("Equal", 5, 7))
sketch6.addConstraint(Sketcher.Constraint("Equal", 7, 9))
sketch6.addConstraint(Sketcher.Constraint("Equal", 9, 11))
sketch6.addConstraint(Sketcher.Constraint("Parallel", 0, 6))
sketch6.addConstraint(Sketcher.Constraint("Parallel", 2, 8))
sketch6.addConstraint(Sketcher.Constraint("Horizontal", 5, 3, 9, 3))
sketch6.addConstraint(Sketcher.Constraint("Horizontal", 3, 3, 11, 3))
sketch6.addConstraint(Sketcher.Constraint("Horizontal", 0, 2, 1, 1))
sketch6.addConstraint(Sketcher.Constraint("Angle", 0, Q("30 deg")))
sketch6.addConstraint(Sketcher.Constraint("Radius", 1, Q("0.005 in")))
sketch6.addConstraint(Sketcher.Constraint("DistanceX", -1, 1, 1, 3, Q("0.02 in")))
sketch6.addConstraint(Sketcher.Constraint("DistanceX", -1, 1, 2, 2, Q("0.08 in")))
sketch6.addConstraint(Sketcher.Constraint("DistanceY", 4, 2, 4, 1, 1.68644))
sketch6.addConstraint(Sketcher.Constraint("DistanceY", -1, 1, 1, 3, 1.57214))
sketch6.setExpression("Constraints[25]", "Params.sketch6_radius")
pocket1 = doc.addObject("PartDesign::Pocket", "Pocket")
body2.addObject(pocket1)
pocket1.Profile = sketch6
pocket1.setExpression("Length", "Params.pocket1_length")
pocket1.Reversed = True

# Sketch on YZ plane
sketch7 = doc.addObject("Sketcher::SketchObject", "Sketch006")
body2.addObject(sketch7)
sketch7.AttachmentSupport = (doc.getObject("YZ_Plane001"), [""])
sketch7.MapMode = "FlatFace"
sketch7.AttachmentOffset = App.Placement(App.Vector(0, 0, 0.02 * 25.4), App.Rotation())
sketch7.addGeometry(Part.LineSegment(App.Vector(6.1722, -0.1143, 0), App.Vector(6.1722, 1.4732, 0)), False)
sketch7.addGeometry(Part.LineSegment(App.Vector(6.1722, 1.4732, 0), App.Vector(5.218334, -0.1143, 0)), False)
sketch7.addGeometry(Part.LineSegment(App.Vector(5.218334, -0.1143, 0), App.Vector(6.1722, -0.1143, 0)), False)
sketch7.addGeometry(Part.LineSegment(App.Vector(6.1722, -0.1143, 0), App.Vector(5.218334, -0.1143, 0)), True)  # axis
sketch7.addConstraint(Sketcher.Constraint("Coincident", 0, 2, 1, 1))
sketch7.addConstraint(Sketcher.Constraint("Coincident", 1, 2, 2, 1))
sketch7.addConstraint(Sketcher.Constraint("Coincident", 2, 2, 0, 1))
sketch7.addConstraint(Sketcher.Constraint("Vertical", 0))
sketch7.addConstraint(Sketcher.Constraint("Horizontal", 2))
sketch7.addConstraint(Sketcher.Constraint("Horizontal", 3))
sketch7.addConstraint(Sketcher.Constraint("Coincident", 3, 1, 2, 2))
sketch7.addConstraint(Sketcher.Constraint("Equal", 2, 3))
sketch7.addConstraint(Sketcher.Constraint("Angle", 1, Q("-121 deg")))
sketch7.addConstraint(Sketcher.Constraint("DistanceY", 0, 1, 0, 2, Q("0.0625 in")))
sketch7.addConstraint(Sketcher.Constraint("DistanceX", -1, 1, 0, 2, Q("0.243 in")))
sketch7.addConstraint(Sketcher.Constraint("DistanceY", -1, 1, 0, 2, Q("0.058 in")))
sketch7.setExpression("Constraints[9]", "Params.sketch7_height")
groove2 = doc.addObject("PartDesign::Groove", "Groove001")
body2.addObject(groove2)
groove2.Profile = sketch7
groove2.ReferenceAxis = (sketch7, ["Axis0"])
groove2.setExpression("Angle", "Params.groove2_angle")

# Sketch on YZ plane
sketch8 = doc.addObject("Sketcher::SketchObject", "Sketch007")
body2.addObject(sketch8)
sketch8.AttachmentSupport = (doc.getObject("YZ_Plane001"), [""])
sketch8.MapMode = "FlatFace"
sketch8.AttachmentOffset = App.Placement(App.Vector(0, 0, 0.02 * 25.4), App.Rotation())
sketch8.addGeometry(Part.LineSegment(App.Vector(7.6708, -0.1143, 0), App.Vector(7.6708, 1.718787, 0)), False)
sketch8.addGeometry(Part.LineSegment(App.Vector(7.6708, 1.718787, 0), App.Vector(6.612467, -0.1143, 0)), False)
sketch8.addGeometry(Part.LineSegment(App.Vector(6.612467, -0.1143, 0), App.Vector(7.6708, -0.1143, 0)), False)
sketch8.addGeometry(Part.LineSegment(App.Vector(7.6708, -0.1143, 0), App.Vector(6.612467, -0.1143, 0)), True)  # axis
sketch8.addConstraint(Sketcher.Constraint("Coincident", 0, 2, 1, 1))
sketch8.addConstraint(Sketcher.Constraint("Coincident", 1, 2, 2, 1))
sketch8.addConstraint(Sketcher.Constraint("Coincident", 2, 2, 0, 1))
sketch8.addConstraint(Sketcher.Constraint("Vertical", 0))
sketch8.addConstraint(Sketcher.Constraint("Horizontal", 2))
sketch8.addConstraint(Sketcher.Constraint("Horizontal", 3))
sketch8.addConstraint(Sketcher.Constraint("Coincident", 3, 1, 2, 2))
sketch8.addConstraint(Sketcher.Constraint("Equal", 2, 3))
sketch8.addConstraint(Sketcher.Constraint("Angle", 1, Q("-120 deg")))
sketch8.addConstraint(Sketcher.Constraint("DistanceX", -1, 1, 0, 2, Q("0.302 in")))
sketch8.addConstraint(Sketcher.Constraint("DistanceY", 1, 2, -1, 1, Q("0.0045 in")))
sketch8.addConstraint(Sketcher.Constraint("DistanceX", 2, 1, 2, 2, 1.058333))
groove3 = doc.addObject("PartDesign::Groove", "Groove002")
body2.addObject(groove3)
groove3.Profile = sketch8
groove3.ReferenceAxis = (sketch8, ["Axis0"])
groove3.setExpression("Angle", "Params.groove3_angle")

doc.recompute()
